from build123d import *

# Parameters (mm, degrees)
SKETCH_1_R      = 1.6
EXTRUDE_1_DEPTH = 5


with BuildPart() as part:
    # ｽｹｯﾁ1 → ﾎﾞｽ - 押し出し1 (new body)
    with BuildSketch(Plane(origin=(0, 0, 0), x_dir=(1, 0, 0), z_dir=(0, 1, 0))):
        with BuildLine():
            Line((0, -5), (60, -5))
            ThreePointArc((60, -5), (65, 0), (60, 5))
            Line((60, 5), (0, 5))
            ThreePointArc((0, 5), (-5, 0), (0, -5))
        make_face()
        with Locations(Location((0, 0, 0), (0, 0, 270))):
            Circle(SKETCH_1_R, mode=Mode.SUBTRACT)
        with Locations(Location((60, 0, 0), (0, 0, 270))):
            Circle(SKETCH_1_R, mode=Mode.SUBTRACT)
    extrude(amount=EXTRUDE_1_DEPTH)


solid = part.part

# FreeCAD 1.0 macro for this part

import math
import FreeCAD as App
import Part
import Sketcher

doc = App.newDocument("Part")
body = doc.addObject("PartDesign::Body", "Body")

sketch1 = body.newObject("Sketcher::SketchObject", "Sketch")
sketch1.AttachmentSupport = (doc.getObject("XZ_Plane"), [""])
sketch1.MapMode = "FlatFace"
sketch1.addGeometry([
    Part.LineSegment(App.Vector(0, 5, 0), App.Vector(60, 5, 0)),
    Part.ArcOfCircle(Part.Circle(App.Vector(60, 0, 0), App.Vector(0, 0, 1), 5), math.radians(-90), math.radians(90)),
    Part.LineSegment(App.Vector(60, -5, 0), App.Vector(0, -5, 0)),
    Part.ArcOfCircle(Part.Circle(App.Vector(0, 0, 0), App.Vector(0, 0, 1), 5), math.radians(90), math.radians(270)),
    Part.Circle(App.Vector(0, 0, 0), App.Vector(0, 0, 1), 1.6),
    Part.Circle(App.Vector(60, 0, 0), App.Vector(0, 0, 1), 1.6),
], False)
sketch1.addConstraint([
    Sketcher.Constraint("Tangent", 0, 2, 1, 2),
    Sketcher.Constraint("Tangent", 1, 1, 2, 1),
    Sketcher.Constraint("Tangent", 2, 2, 3, 2),
    Sketcher.Constraint("Tangent", 3, 1, 0, 1),
    Sketcher.Constraint("Horizontal", 0),
    Sketcher.Constraint("Horizontal", 2),
    Sketcher.Constraint("Coincident", 3, 3, -1, 1),
    Sketcher.Constraint("Coincident", 4, 3, -1, 1),
    Sketcher.Constraint("Coincident", 5, 3, 1, 3),
    Sketcher.Constraint("Equal", 4, 5),
    Sketcher.Constraint("Radius", 1, 5.0),
    Sketcher.Constraint("Diameter", 4, 3.2),
    Sketcher.Constraint("DistanceX", 0, 1, 0, 2, 60.0),
])
pad1 = body.newObject("PartDesign::Pad", "Pad")
pad1.Profile = sketch1
pad1.Length = 5
pad1.Reversed = True

doc.recompute()
